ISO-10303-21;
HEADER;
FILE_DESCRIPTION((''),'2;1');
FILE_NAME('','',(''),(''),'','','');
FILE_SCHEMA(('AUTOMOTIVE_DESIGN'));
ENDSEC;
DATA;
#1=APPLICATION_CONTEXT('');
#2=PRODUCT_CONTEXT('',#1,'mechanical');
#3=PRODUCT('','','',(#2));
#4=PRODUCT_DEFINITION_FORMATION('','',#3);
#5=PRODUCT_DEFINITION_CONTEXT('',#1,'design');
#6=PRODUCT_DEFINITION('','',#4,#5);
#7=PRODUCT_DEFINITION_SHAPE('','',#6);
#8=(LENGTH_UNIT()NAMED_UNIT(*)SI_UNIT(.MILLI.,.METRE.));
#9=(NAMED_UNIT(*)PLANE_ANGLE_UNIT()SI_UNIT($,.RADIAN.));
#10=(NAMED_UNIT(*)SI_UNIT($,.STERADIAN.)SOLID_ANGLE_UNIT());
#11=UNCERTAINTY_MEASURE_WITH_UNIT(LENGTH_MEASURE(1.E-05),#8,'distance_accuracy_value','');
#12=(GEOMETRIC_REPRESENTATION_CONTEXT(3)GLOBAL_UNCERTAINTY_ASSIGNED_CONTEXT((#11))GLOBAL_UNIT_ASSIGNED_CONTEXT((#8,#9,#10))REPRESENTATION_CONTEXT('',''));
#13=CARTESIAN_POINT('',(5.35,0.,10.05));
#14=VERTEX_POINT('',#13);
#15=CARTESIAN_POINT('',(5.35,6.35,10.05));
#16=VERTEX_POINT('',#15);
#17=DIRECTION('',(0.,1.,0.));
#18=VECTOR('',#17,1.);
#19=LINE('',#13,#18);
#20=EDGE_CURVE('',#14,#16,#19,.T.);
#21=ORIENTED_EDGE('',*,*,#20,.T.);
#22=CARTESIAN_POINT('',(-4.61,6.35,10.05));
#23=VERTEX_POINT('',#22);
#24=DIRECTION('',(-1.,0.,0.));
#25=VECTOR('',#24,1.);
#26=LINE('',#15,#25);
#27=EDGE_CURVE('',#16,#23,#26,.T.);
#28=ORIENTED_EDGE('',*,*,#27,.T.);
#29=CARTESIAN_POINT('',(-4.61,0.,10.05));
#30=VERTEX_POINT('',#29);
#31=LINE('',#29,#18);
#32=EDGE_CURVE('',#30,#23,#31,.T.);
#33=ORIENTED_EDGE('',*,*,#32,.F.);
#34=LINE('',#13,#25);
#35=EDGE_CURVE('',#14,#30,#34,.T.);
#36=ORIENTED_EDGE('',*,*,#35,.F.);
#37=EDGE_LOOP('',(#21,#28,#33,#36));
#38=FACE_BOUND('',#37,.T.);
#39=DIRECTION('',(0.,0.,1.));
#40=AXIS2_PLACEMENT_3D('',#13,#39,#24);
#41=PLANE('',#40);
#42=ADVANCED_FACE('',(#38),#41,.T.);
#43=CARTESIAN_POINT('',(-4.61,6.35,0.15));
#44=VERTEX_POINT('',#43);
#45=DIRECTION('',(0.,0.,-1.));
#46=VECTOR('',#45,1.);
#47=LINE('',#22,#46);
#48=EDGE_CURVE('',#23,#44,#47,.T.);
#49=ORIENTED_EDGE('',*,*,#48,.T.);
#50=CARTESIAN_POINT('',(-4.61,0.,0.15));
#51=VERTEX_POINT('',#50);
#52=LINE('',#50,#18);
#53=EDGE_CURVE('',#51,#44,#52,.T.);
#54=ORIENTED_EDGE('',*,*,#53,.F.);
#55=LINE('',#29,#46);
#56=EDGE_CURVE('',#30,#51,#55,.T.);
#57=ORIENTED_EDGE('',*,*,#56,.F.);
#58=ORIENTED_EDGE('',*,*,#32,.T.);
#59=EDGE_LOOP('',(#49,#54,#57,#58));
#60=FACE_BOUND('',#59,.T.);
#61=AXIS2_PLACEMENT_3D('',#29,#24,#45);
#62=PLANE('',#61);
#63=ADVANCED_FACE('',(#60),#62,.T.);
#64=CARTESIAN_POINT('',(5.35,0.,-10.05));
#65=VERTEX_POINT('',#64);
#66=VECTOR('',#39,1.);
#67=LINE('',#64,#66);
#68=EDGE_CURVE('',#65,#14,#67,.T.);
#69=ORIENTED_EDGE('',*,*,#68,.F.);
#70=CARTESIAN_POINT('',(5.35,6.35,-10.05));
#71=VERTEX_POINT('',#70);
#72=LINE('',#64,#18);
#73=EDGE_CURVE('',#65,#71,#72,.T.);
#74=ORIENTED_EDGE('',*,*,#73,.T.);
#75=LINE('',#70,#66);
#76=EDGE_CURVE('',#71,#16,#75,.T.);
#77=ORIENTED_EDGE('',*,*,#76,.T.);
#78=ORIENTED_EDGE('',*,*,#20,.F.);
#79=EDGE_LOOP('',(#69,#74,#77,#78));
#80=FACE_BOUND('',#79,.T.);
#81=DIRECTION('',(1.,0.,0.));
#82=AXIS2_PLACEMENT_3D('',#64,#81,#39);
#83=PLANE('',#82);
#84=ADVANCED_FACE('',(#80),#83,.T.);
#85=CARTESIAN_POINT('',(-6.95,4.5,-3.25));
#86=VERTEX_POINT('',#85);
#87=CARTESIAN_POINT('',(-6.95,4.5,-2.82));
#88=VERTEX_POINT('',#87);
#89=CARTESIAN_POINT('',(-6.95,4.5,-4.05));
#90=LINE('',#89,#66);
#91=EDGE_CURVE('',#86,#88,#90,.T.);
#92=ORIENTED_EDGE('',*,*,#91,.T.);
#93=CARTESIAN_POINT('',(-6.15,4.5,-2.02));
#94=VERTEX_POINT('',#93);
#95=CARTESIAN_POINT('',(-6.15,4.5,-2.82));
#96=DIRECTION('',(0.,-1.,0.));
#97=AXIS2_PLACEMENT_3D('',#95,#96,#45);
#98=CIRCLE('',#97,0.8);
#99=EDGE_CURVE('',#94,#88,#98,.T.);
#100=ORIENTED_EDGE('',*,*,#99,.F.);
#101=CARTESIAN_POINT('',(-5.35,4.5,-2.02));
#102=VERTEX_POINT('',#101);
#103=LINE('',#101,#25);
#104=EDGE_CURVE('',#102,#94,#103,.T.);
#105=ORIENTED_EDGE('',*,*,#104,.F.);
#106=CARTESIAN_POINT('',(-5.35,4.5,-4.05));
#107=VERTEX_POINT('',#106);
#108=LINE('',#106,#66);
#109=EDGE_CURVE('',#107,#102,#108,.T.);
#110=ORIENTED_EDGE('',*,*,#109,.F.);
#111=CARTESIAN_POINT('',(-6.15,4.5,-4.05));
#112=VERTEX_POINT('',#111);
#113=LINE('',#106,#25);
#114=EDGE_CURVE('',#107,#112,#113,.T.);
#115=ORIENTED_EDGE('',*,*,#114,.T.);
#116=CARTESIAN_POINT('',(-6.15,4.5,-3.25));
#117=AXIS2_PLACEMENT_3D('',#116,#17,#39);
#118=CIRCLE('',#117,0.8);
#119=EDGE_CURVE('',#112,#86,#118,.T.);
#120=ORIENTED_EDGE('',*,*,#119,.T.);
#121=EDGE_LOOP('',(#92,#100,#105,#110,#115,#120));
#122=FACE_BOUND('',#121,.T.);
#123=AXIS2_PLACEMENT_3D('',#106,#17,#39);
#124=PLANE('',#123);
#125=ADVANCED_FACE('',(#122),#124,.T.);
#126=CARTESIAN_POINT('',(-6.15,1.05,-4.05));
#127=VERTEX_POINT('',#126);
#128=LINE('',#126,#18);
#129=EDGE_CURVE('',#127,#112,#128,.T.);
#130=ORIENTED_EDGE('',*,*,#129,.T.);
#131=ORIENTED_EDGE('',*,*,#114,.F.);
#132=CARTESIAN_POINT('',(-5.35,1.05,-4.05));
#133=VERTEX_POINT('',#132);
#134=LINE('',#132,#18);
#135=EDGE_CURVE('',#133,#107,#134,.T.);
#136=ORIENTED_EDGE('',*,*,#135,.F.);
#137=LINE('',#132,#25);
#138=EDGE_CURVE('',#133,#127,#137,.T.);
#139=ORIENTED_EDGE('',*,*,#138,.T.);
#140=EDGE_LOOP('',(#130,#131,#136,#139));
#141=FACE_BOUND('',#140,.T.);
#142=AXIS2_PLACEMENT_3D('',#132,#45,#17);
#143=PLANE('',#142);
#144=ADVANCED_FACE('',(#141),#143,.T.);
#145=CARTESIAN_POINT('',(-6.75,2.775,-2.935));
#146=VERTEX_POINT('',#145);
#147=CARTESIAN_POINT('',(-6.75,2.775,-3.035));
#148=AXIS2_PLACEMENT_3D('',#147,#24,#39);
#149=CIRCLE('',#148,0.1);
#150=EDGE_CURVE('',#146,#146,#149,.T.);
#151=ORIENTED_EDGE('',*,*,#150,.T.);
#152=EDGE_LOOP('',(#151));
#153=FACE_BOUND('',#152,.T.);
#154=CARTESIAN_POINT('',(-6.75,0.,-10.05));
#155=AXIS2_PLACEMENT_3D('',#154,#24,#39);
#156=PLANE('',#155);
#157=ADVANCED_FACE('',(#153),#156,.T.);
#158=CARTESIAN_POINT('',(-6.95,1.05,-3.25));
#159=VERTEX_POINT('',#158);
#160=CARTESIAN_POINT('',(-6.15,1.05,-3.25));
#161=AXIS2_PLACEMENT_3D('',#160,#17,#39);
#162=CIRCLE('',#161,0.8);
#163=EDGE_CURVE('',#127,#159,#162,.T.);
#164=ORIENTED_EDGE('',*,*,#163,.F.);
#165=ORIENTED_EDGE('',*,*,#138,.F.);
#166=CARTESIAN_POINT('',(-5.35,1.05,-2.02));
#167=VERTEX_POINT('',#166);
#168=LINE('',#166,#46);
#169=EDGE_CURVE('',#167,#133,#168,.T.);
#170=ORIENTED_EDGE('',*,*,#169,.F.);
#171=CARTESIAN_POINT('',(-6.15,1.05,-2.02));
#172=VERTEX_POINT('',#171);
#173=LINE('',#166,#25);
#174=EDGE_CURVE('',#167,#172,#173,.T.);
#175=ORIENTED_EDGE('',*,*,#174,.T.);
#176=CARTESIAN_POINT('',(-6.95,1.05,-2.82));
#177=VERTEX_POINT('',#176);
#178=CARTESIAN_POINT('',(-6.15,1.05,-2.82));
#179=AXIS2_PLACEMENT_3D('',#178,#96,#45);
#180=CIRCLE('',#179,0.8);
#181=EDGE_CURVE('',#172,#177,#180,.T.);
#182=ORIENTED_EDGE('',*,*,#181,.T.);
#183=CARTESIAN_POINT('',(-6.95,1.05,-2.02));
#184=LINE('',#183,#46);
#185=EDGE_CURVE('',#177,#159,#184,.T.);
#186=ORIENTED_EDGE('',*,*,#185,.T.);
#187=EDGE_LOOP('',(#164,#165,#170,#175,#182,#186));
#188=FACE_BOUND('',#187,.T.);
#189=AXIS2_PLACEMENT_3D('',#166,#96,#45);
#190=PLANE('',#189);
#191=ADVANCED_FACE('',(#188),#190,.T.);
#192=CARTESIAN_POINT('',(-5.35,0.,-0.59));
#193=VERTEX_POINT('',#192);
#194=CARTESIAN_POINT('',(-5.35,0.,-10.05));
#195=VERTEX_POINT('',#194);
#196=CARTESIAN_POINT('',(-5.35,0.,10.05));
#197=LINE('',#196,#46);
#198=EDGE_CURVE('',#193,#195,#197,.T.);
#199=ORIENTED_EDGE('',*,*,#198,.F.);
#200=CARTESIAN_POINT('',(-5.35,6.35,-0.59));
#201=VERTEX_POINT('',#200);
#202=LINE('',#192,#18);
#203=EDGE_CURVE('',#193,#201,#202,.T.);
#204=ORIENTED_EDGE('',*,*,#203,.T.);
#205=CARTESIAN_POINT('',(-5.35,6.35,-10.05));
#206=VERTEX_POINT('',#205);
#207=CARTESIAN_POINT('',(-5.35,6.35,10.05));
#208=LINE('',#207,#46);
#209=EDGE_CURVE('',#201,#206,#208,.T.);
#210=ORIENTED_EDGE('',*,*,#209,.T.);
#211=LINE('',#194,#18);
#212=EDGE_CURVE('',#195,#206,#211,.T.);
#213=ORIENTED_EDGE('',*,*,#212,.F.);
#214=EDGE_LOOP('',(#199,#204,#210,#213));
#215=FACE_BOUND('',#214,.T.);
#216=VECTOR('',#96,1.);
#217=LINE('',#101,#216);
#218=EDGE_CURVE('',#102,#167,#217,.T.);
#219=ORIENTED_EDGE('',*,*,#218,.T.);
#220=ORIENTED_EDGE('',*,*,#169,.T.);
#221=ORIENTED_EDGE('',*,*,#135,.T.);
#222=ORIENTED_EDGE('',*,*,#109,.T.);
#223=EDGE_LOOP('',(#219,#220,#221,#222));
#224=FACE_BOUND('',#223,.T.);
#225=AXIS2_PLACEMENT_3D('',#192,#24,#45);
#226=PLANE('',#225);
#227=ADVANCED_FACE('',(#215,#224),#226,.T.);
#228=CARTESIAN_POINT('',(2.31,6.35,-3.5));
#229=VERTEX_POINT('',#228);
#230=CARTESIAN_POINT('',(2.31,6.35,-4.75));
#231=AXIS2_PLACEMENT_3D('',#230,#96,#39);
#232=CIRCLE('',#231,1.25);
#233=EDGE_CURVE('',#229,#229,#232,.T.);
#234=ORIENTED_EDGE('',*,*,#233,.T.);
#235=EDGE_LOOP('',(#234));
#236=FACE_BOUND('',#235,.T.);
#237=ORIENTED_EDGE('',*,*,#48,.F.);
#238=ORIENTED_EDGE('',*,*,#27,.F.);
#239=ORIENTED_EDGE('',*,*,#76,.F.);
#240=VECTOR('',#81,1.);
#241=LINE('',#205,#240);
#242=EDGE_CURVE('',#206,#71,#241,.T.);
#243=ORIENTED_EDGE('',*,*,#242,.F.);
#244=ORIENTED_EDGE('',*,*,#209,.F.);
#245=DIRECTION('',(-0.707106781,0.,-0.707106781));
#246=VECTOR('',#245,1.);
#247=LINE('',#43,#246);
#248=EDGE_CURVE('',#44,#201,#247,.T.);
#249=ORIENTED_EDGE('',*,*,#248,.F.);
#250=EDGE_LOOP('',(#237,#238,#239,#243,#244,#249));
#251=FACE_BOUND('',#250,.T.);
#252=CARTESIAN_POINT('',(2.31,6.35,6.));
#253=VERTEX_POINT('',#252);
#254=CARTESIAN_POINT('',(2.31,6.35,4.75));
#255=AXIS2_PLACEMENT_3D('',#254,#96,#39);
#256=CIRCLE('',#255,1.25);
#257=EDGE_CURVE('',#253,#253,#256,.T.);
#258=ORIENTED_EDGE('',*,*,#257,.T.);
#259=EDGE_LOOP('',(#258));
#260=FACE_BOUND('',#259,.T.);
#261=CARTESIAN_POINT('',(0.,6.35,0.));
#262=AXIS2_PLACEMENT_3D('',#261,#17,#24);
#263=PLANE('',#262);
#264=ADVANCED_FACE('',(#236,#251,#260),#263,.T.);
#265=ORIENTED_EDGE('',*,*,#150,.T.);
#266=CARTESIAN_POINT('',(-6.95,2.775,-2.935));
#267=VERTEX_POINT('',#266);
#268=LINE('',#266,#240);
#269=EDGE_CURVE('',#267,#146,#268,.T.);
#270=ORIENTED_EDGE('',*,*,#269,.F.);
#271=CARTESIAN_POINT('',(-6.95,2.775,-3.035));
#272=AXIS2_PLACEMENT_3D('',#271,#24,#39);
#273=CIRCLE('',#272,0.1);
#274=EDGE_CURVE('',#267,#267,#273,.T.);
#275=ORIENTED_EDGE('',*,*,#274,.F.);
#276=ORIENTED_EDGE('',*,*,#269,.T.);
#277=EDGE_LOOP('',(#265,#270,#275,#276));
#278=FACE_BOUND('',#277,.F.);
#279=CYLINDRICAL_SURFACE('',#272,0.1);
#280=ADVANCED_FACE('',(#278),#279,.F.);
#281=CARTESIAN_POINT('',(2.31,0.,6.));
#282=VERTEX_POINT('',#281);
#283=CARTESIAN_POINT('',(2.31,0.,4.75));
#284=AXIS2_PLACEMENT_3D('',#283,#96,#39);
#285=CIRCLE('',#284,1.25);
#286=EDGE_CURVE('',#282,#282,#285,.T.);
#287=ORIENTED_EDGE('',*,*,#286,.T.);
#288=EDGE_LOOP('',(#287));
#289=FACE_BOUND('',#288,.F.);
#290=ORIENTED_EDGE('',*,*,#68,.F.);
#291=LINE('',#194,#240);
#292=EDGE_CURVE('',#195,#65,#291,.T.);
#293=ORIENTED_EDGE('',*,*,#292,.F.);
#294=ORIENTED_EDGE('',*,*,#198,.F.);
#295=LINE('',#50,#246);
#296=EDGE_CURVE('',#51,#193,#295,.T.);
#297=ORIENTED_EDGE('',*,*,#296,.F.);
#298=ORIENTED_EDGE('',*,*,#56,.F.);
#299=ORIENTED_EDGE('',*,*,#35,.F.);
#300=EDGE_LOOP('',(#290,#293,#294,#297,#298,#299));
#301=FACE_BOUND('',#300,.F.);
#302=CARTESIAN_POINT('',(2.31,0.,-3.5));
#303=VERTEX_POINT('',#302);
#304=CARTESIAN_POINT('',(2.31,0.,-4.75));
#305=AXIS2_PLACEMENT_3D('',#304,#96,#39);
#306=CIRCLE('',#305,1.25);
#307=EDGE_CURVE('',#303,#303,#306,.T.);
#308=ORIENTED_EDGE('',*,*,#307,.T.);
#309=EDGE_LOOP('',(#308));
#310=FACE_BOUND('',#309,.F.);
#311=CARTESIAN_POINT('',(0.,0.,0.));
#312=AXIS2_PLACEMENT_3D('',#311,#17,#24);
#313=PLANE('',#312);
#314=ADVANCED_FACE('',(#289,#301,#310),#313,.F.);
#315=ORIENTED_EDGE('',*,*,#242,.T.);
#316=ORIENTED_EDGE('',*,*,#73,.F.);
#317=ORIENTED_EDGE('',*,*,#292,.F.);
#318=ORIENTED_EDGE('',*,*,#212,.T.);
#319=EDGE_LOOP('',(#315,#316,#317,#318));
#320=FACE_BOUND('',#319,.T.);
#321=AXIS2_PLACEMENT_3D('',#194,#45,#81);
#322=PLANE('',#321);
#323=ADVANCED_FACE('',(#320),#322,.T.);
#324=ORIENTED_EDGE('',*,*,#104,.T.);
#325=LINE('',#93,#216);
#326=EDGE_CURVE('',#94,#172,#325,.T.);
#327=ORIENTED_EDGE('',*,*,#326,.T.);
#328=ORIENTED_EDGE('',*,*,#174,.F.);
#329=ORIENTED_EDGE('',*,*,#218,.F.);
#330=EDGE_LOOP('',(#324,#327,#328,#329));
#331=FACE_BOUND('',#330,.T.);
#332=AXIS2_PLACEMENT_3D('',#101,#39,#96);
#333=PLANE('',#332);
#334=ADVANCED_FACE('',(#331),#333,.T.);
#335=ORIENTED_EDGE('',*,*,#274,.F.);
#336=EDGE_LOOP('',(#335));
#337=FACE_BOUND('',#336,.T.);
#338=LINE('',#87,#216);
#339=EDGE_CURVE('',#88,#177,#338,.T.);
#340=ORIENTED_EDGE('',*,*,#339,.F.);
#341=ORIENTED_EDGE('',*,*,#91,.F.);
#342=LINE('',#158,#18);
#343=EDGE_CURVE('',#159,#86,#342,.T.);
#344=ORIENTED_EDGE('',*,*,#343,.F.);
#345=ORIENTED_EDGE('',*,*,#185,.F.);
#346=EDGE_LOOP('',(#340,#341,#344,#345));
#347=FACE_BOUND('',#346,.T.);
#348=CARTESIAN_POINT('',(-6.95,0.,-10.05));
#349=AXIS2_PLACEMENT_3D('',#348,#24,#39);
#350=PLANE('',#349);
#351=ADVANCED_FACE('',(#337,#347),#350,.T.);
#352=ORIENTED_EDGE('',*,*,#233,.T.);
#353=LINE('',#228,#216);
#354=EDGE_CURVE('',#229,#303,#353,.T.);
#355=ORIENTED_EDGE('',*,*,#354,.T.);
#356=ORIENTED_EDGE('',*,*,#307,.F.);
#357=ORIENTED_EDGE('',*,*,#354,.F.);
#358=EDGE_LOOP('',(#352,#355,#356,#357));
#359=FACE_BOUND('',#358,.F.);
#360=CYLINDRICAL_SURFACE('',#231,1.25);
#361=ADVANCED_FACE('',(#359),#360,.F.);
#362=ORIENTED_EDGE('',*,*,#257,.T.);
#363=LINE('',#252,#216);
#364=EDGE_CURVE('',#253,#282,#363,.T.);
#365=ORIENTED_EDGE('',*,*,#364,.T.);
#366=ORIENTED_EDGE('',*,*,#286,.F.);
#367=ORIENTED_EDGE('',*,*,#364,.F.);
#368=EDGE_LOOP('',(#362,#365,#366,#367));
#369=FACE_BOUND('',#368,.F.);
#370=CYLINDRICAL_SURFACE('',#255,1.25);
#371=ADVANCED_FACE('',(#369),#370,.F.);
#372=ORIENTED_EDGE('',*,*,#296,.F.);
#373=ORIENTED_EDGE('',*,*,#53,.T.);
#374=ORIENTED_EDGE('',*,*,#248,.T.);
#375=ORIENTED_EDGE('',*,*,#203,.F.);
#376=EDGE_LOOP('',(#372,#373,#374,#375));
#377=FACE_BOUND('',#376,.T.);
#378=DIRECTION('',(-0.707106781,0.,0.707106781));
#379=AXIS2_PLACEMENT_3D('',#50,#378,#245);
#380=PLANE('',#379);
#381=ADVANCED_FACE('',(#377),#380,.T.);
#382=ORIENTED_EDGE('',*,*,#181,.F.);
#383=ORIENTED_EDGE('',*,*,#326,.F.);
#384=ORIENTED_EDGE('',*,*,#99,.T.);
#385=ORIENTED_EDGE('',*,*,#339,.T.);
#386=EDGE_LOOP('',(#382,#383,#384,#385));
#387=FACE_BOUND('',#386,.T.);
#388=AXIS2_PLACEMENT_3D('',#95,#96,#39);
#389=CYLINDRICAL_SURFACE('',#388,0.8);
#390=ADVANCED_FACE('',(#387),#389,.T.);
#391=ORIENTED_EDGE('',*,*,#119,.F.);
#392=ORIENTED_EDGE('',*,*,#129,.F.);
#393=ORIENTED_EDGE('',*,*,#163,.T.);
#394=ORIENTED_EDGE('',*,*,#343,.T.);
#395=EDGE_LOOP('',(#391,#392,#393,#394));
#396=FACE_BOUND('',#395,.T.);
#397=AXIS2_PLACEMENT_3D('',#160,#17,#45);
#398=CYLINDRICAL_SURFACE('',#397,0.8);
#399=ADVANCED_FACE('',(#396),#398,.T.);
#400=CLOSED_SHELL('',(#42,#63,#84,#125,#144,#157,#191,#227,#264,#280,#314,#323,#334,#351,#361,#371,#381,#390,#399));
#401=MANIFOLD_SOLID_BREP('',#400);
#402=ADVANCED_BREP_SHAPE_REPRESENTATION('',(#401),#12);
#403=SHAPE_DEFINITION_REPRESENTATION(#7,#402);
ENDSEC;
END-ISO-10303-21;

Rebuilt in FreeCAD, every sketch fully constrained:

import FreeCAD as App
import Part
import Sketcher

V = App.Vector
Q = App.Units.Quantity


def edges_at(feature, points):
    """Names of the edges that pass closest to the given points."""
    edges = feature.Shape.Edges
    near = lambda p: min(range(len(edges)), key=lambda i: edges[i].distToShape(Part.Vertex(*p))[0])
    return sorted({f"Edge{near(p) + 1}" for p in points})

doc = App.newDocument("Part")
body = doc.addObject("PartDesign::Body", "Body")

sketch1 = doc.addObject("Sketcher::SketchObject", "Sketch")
body.addObject(sketch1)
sketch1.AttachmentSupport = (doc.XZ_Plane, [""])
sketch1.MapMode = "FlatFace"
sketch1.addGeometry([
    Part.LineSegment(V(-4.6, 10.1, 0), V(5.3, 10.1, 0)),
    Part.LineSegment(V(5.3, 10.1, 0), V(5.3, -10.1, 0)),
    Part.LineSegment(V(5.3, -10.1, 0), V(-5.3, -10.1, 0)),
    Part.LineSegment(V(-5.3, -10.1, 0), V(-5.3, -0.6, 0)),
    Part.LineSegment(V(-5.3, -0.6, 0), V(-4.6, 0.1, 0)),
    Part.LineSegment(V(-4.6, 0.1, 0), V(-4.6, 10.1, 0)),
], False)
sketch1.addConstraint([
    Sketcher.Constraint("Coincident", 0, 2, 1, 1),
    Sketcher.Constraint("Coincident", 1, 2, 2, 1),
    Sketcher.Constraint("Coincident", 2, 2, 3, 1),
    Sketcher.Constraint("Coincident", 3, 2, 4, 1),
    Sketcher.Constraint("Coincident", 4, 2, 5, 1),
    Sketcher.Constraint("Coincident", 5, 2, 0, 1),
    Sketcher.Constraint("Horizontal", 0),
    Sketcher.Constraint("Vertical", 1),
    Sketcher.Constraint("Horizontal", 2),
    Sketcher.Constraint("Vertical", 3),
    Sketcher.Constraint("Vertical", 5),
    Sketcher.Constraint("Symmetric", 0, 2, 2, 2, -1, 1),
    Sketcher.Constraint("Angle", 4, Q("45 deg")),
    Sketcher.Constraint("DistanceX", 2, 2, 2, 1, Q("10.7 mm")),
    Sketcher.Constraint("DistanceY", 1, 2, 1, 1, Q("20.1 mm")),
    Sketcher.Constraint("DistanceY", 5, 1, 5, 2, Q("9.9 mm")),
    Sketcher.Constraint("DistanceX", 0, 1, 0, 2, Q("9.96 mm")),
])
pad1 = doc.addObject("PartDesign::Pad", "Pad")
body.addObject(pad1)
pad1.Profile = sketch1
pad1.Length = 6.35
pad1.Reversed = True

sketch2 = doc.addObject("Sketcher::SketchObject", "Sketch001")
body.addObject(sketch2)
sketch2.AttachmentSupport = (doc.YZ_Plane, [""])
sketch2.MapMode = "FlatFace"
sketch2.AttachmentOffset = App.Placement(V(0, 0, -5.35), App.Rotation())
sketch2.addGeometry([
    Part.LineSegment(V(4.5, -2, 0), V(4.5, -4, 0)),
    Part.LineSegment(V(4.5, -4, 0), V(1.1, -4, 0)),
    Part.LineSegment(V(1.1, -4, 0), V(1.1, -2, 0)),
    Part.LineSegment(V(1.1, -2, 0), V(4.5, -2, 0)),
], False)
sketch2.addConstraint([
    Sketcher.Constraint("Coincident", 0, 2, 1, 1),
    Sketcher.Constraint("Coincident", 1, 2, 2, 1),
    Sketcher.Constraint("Coincident", 2, 2, 3, 1),
    Sketcher.Constraint("Coincident", 3, 2, 0, 1),
    Sketcher.Constraint("Vertical", 0),
    Sketcher.Constraint("Horizontal", 1),
    Sketcher.Constraint("Vertical", 2),
    Sketcher.Constraint("Horizontal", 3),
    Sketcher.Constraint("DistanceX", 1, 2, 1, 1, Q("3.45 mm")),
    Sketcher.Constraint("DistanceY", 0, 2, 0, 1, Q("2.03 mm")),
    Sketcher.Constraint("DistanceX", -1, 1, 1, 2, Q("1.05 mm")),
    Sketcher.Constraint("DistanceY", 0, 2, -1, 1, Q("4.05 mm")),
])
pad2 = doc.addObject("PartDesign::Pad", "Pad001")
body.addObject(pad2)
pad2.Profile = sketch2
pad2.Length = 1.6
pad2.Reversed = True
doc.recompute()

fillet = doc.addObject("PartDesign::Fillet", "Fillet")
body.addObject(fillet)
fillet.Base = (pad2, edges_at(pad2, [(-6.95, 2.775, -2.02), (-6.95, 2.775, -4.05)]))
fillet.Radius = 0.8

sketch3 = doc.addObject("Sketcher::SketchObject", "Sketch002")
body.addObject(sketch3)
sketch3.AttachmentSupport = (doc.XZ_Plane, [""])
sketch3.MapMode = "FlatFace"
sketch3.AttachmentOffset = App.Placement(V(0, 0, -6.35), App.Rotation())
sketch3.addGeometry([
    Part.Circle(V(2.3, 4.8, 0), V(0, 0, 1), 1.2),
    Part.Circle(V(2.3, -4.8, 0), V(0, 0, 1), 1.2),
], False)
sketch3.addConstraint([
    Sketcher.Constraint("Equal", 0, 1),
    Sketcher.Constraint("Symmetric", 0, 3, 1, 3, -1),
    Sketcher.Constraint("Diameter", 0, Q("2.5 mm")),
    Sketcher.Constraint("DistanceY", 1, 3, 0, 3, Q("9.5 mm")),
    Sketcher.Constraint("DistanceX", -1, 1, 0, 3, Q("2.31 mm")),
])
doc.recompute()
hole = doc.addObject("PartDesign::Hole", "Hole")
body.addObject(hole)
hole.Profile = sketch3
hole.ThreadType = "None"
hole.Diameter = 2.5
hole.DepthType = "ThroughAll"
hole.Reversed = True

sketch4 = doc.addObject("Sketcher::SketchObject", "Sketch003")
body.addObject(sketch4)
sketch4.AttachmentSupport = (doc.YZ_Plane, [""])
sketch4.MapMode = "FlatFace"
sketch4.AttachmentOffset = App.Placement(V(0, 0, -6.95), App.Rotation())
sketch4.addGeometry(Part.Circle(V(2.77, -3.04, 0), V(0, 0, 1), 0.1), False)
sketch4.addConstraint([
    Sketcher.Constraint("Diameter", 0, Q("0.2 mm")),
    Sketcher.Constraint("DistanceX", -1, 1, 0, 3, Q("2.775 mm")),
    Sketcher.Constraint("DistanceY", 0, 3, -1, 1, Q("3.035 mm")),
])
pocket1 = doc.addObject("PartDesign::Pocket", "Pocket")
body.addObject(pocket1)
pocket1.Profile = sketch4
pocket1.Length = 0.2
pocket1.Reversed = True

doc.recompute()
